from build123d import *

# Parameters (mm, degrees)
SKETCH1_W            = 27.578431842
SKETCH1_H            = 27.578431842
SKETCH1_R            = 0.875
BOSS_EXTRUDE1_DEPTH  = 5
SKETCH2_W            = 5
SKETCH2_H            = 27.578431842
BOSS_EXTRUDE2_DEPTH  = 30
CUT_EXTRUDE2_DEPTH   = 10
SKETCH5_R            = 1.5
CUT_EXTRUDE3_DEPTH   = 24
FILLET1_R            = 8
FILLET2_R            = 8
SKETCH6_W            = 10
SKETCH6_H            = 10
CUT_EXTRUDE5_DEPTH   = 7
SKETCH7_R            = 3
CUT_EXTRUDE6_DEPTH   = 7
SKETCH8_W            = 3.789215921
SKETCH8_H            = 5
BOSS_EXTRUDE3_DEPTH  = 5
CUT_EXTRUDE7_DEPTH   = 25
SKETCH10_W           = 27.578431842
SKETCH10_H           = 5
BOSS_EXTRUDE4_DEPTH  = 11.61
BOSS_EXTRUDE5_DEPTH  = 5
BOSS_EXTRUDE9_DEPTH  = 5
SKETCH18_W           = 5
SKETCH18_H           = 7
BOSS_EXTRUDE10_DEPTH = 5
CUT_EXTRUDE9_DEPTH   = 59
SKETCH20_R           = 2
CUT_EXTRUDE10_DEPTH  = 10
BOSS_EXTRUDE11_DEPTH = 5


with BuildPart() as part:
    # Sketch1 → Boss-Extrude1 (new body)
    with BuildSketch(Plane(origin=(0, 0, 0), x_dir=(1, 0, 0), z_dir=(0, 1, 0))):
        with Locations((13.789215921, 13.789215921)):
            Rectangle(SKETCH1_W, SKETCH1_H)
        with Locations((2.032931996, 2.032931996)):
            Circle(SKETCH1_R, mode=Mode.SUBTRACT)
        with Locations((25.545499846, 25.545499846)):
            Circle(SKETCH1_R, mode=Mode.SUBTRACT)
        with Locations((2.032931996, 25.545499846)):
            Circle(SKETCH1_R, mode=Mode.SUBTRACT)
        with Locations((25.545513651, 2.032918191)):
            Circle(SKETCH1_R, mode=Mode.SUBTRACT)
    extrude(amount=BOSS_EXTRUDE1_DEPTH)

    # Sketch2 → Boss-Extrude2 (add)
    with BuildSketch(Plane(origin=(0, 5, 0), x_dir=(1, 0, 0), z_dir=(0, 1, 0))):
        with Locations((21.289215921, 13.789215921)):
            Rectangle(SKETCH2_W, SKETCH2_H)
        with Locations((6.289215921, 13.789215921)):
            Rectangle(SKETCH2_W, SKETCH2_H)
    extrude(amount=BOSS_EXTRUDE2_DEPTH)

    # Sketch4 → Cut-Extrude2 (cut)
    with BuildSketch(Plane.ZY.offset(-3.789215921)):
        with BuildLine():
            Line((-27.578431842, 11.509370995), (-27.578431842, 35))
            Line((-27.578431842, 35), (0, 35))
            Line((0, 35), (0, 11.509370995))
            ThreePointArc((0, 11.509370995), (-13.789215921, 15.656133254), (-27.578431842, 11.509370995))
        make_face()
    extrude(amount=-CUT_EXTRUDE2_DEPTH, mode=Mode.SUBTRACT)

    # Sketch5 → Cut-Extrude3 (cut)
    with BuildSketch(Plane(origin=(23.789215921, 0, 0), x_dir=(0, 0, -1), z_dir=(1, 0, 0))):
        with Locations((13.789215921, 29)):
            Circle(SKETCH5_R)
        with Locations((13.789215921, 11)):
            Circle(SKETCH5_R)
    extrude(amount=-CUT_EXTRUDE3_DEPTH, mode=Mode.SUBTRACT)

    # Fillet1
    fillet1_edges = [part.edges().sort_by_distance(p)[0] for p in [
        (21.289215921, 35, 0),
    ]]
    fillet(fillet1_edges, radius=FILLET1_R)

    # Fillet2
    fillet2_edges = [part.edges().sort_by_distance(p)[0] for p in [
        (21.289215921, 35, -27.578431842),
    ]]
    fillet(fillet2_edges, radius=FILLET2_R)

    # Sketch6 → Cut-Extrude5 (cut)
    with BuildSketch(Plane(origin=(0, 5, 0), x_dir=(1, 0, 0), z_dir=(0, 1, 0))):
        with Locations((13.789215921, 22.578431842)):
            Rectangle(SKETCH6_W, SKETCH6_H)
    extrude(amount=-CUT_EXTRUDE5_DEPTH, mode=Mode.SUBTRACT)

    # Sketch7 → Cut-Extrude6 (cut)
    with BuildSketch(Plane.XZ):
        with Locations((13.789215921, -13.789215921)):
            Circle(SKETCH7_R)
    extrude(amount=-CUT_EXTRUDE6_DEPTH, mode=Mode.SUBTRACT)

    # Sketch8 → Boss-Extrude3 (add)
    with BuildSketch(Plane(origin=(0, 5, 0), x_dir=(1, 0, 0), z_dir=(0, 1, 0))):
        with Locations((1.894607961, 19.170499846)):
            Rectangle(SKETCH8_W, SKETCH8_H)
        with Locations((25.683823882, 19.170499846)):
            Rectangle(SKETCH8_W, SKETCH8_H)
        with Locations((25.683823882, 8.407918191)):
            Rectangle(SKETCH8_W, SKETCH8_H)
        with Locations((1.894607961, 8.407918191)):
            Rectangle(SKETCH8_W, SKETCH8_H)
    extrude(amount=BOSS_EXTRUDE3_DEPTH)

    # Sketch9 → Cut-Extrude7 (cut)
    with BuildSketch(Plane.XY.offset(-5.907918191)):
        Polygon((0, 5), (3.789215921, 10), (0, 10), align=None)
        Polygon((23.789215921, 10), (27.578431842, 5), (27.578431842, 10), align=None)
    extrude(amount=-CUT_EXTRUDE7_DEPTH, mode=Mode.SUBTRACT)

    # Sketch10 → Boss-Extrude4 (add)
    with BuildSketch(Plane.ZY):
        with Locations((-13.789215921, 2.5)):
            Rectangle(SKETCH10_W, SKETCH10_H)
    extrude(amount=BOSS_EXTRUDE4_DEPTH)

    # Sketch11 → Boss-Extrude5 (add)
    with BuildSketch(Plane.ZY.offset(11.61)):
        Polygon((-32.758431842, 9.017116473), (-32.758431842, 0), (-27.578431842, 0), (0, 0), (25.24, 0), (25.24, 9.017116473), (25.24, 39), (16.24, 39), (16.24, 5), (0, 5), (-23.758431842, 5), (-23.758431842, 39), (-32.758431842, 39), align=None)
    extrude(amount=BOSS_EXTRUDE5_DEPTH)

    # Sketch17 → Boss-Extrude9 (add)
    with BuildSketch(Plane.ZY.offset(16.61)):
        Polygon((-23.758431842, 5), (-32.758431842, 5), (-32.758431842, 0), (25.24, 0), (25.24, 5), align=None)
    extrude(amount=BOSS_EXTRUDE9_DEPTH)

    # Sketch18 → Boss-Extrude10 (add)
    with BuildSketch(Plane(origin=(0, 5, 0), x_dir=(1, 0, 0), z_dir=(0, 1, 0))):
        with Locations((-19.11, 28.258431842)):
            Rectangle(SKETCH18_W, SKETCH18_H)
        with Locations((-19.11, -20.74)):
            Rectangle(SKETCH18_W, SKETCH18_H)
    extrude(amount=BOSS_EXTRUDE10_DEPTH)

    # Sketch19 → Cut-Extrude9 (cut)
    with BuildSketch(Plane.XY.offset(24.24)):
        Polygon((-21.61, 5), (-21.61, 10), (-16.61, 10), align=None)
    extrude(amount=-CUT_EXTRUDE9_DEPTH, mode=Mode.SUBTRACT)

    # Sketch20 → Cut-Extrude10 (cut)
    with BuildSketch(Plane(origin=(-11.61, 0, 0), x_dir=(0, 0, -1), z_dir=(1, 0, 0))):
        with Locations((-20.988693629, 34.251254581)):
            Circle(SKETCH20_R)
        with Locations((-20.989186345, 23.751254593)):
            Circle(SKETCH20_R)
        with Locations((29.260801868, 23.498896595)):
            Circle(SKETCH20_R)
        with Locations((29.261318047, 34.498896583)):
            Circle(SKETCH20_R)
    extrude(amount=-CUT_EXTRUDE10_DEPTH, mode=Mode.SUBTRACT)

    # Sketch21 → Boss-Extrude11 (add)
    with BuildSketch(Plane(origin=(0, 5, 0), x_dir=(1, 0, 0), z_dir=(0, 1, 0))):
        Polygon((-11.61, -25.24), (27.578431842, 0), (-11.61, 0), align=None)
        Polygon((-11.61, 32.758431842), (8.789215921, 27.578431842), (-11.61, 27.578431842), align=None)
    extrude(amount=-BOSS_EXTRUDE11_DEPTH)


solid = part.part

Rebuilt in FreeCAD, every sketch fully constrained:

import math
import FreeCAD as App
import Part
import Sketcher
from FreeCAD import Vector
Q = App.Units.Quantity


def edges_at(feature, points):
    """Names of the edges that pass closest to the given points."""
    edges = feature.Shape.Edges
    near = lambda p: min(range(len(edges)), key=lambda i: edges[i].distToShape(Part.Vertex(*p))[0])
    return sorted({f"Edge{near(p) + 1}" for p in points})


def add_polygon(sketch, points):
    """Adds a closed chain of lines whose ends are joined by coincident constraints."""
    first, n = sketch.GeometryCount, len(points)
    for a, b in zip(points, points[1:] + points[:1]):
        sketch.addGeometry(Part.LineSegment(App.Vector(*a, 0), App.Vector(*b, 0)), False)
    for i in range(n):
        sketch.addConstraint(Sketcher.Constraint("Coincident", first + i, 2, first + (i + 1) % n, 1))

doc = App.newDocument("Part")
body = doc.addObject("PartDesign::Body", "Body")

# Sketch on XZ plane
sketch1 = body.newObject("Sketcher::SketchObject", "Sketch")
sketch1.AttachmentSupport = (doc.getObject("XZ_Plane"), [""])
sketch1.MapMode = "FlatFace"
add_polygon(sketch1, [(0, -27.578432), (0, 0), (27.578432, 0), (27.578432, -27.578432)])  # lines 0-3
sketch1.addGeometry(Part.Circle(Vector(2.032932, -2.032932, 0), Vector(0, 0, 1), 0.875), False)  # 4
sketch1.addGeometry(Part.Circle(Vector(25.545514, -2.032918, 0), Vector(0, 0, 1), 0.875), False)  # 5
sketch1.addGeometry(Part.Circle(Vector(2.032932, -25.5455, 0), Vector(0, 0, 1), 0.875), False)  # 6
sketch1.addGeometry(Part.Circle(Vector(25.5455, -25.5455, 0), Vector(0, 0, 1), 0.875), False)  # 7
sketch1.addConstraint([
    Sketcher.Constraint("Vertical", 0),
    Sketcher.Constraint("Horizontal", 1),
    Sketcher.Constraint("Vertical", 2),
    Sketcher.Constraint("Horizontal", 3),
    Sketcher.Constraint("Coincident", 0, 2, -1, 1),
    Sketcher.Constraint("Equal", 4, 5),
    Sketcher.Constraint("Equal", 5, 6),
    Sketcher.Constraint("Equal", 6, 7),
    Sketcher.Constraint("Horizontal", 6, 3, 7, 3),
    Sketcher.Constraint("Vertical", 4, 3, 6, 3),
    Sketcher.Constraint("Equal", 3, 0),
    Sketcher.Constraint("Diameter", 4, Q("1.75 mm")),
    Sketcher.Constraint("DistanceX", 1, 1, 1, 2, Q("27.578432 mm")),
    Sketcher.Constraint("DistanceY", 6, 3, -1, 1, Q("25.5455 mm")),
    Sketcher.Constraint("DistanceX", -1, 1, 7, 3, Q("25.5455 mm")),
    Sketcher.Constraint("DistanceX", 4, 3, 1, 2, Q("25.5455 mm")),
    Sketcher.Constraint("DistanceY", 2, 2, 4, 3, Q("25.5455 mm")),
    Sketcher.Constraint("DistanceY", 5, 3, -1, 1, Q("2.032918 mm")),
    Sketcher.Constraint("DistanceX", 4, 3, 5, 3, Q("23.512582 mm")),
])
pad1 = body.newObject("PartDesign::Pad", "Pad")
pad1.Profile = sketch1
pad1.Length = 5
pad1.Reversed = True

# Sketch on XZ plane
sketch2 = body.newObject("Sketcher::SketchObject", "Sketch001")
sketch2.AttachmentSupport = (doc.getObject("XZ_Plane"), [""])
sketch2.MapMode = "FlatFace"
sketch2.AttachmentOffset = App.Placement(Vector(0, 0, -5), App.Rotation())
add_polygon(sketch2, [(18.789216, -27.578432), (18.789216, 0), (23.789216, 0), (23.789216, -27.578432)])  # lines 0-3
add_polygon(sketch2, [(3.789216, -27.578432), (3.789216, 0), (8.789216, 0), (8.789216, -27.578432)])  # lines 4-7
sketch2.addConstraint([
    Sketcher.Constraint("Vertical", 0),
    Sketcher.Constraint("Horizontal", 1),
    Sketcher.Constraint("Vertical", 2),
    Sketcher.Constraint("Horizontal", 3),
    Sketcher.Constraint("Vertical", 4),
    Sketcher.Constraint("Horizontal", 5),
    Sketcher.Constraint("Vertical", 6),
    Sketcher.Constraint("Horizontal", 7),
    Sketcher.Constraint("PointOnObject", 0, 2, -1),
    Sketcher.Constraint("PointOnObject", 4, 2, -1),
    Sketcher.Constraint("Horizontal", 3, 2, 6, 2),
    Sketcher.Constraint("Equal", 3, 5),
    Sketcher.Constraint("DistanceX", 1, 1, 1, 2, Q("5 mm")),
    Sketcher.Constraint("DistanceX", 4, 2, 0, 2, Q("15 mm")),
    Sketcher.Constraint("DistanceY", 0, 1, 0, 2, Q("27.578432 mm")),
    Sketcher.Constraint("DistanceX", -1, 1, 0, 2, Q("18.789216 mm")),
])
pad2 = body.newObject("PartDesign::Pad", "Pad001")
pad2.Profile = sketch2
pad2.Length = 30
pad2.Reversed = True

# Sketch on YZ plane
sketch3 = body.newObject("Sketcher::SketchObject", "Sketch002")
sketch3.AttachmentSupport = (doc.getObject("YZ_Plane"), [""])
sketch3.MapMode = "FlatFace"
sketch3.AttachmentOffset = App.Placement(Vector(0, 0, 3.789216), App.Rotation())
sketch3.addGeometry([
    Part.LineSegment(Vector(35, -27.578432, 0), Vector(11.509371, -27.578432, 0)),
    Part.ArcOfCircle(Part.Circle(Vector(-9.343867, -13.789216, 0), Vector(0, 0, 1), 25), math.radians(-33.474695), math.radians(33.474695)),
    Part.LineSegment(Vector(11.509371, 0, 0), Vector(35, 0, 0)),
    Part.LineSegment(Vector(35, 0, 0), Vector(35, -27.578432, 0)),
], False)
sketch3.addConstraint([
    Sketcher.Constraint("Coincident", 0, 2, 1, 1),
    Sketcher.Constraint("Coincident", 1, 2, 2, 1),
    Sketcher.Constraint("Coincident", 2, 2, 3, 1),
    Sketcher.Constraint("Coincident", 3, 2, 0, 1),
    Sketcher.Constraint("Horizontal", 0),
    Sketcher.Constraint("Horizontal", 2),
    Sketcher.Constraint("Vertical", 3),
    Sketcher.Constraint("PointOnObject", 1, 2, -1),
    Sketcher.Constraint("Vertical", 0, 2, 1, 2),
    Sketcher.Constraint("Radius", 1, Q("25 mm")),
    Sketcher.Constraint("DistanceX", -1, 1, 2, 2, Q("35 mm")),
    Sketcher.Constraint("DistanceX", 0, 2, 0, 1, Q("23.490629 mm")),
    Sketcher.Constraint("DistanceY", 3, 2, 3, 1, Q("27.578432 mm")),
])
pocket1 = body.newObject("PartDesign::Pocket", "Pocket")
pocket1.Profile = sketch3
pocket1.Length = 10
pocket1.Reversed = True

# Sketch on YZ plane
sketch4 = body.newObject("Sketcher::SketchObject", "Sketch003")
sketch4.AttachmentSupport = (doc.getObject("YZ_Plane"), [""])
sketch4.MapMode = "FlatFace"
sketch4.AttachmentOffset = App.Placement(Vector(0, 0, 23.789216), App.Rotation())
sketch4.addGeometry([
    Part.Circle(Vector(29, -13.789216, 0), Vector(0, 0, 1), 1.5),
    Part.Circle(Vector(11, -13.789216, 0), Vector(0, 0, 1), 1.5),
], False)
sketch4.addConstraint([
    Sketcher.Constraint("Equal", 0, 1),
    Sketcher.Constraint("Horizontal", 0, 3, 1, 3),
    Sketcher.Constraint("Diameter", 0, Q("3 mm")),
    Sketcher.Constraint("DistanceX", -1, 1, 0, 3, Q("29 mm")),
    Sketcher.Constraint("DistanceX", -1, 1, 1, 3, Q("11 mm")),
    Sketcher.Constraint("DistanceY", 0, 3, -1, 1, Q("13.789216 mm")),
])
pocket2 = body.newObject("PartDesign::Pocket", "Pocket001")
pocket2.Profile = sketch4
pocket2.Length = 24
doc.recompute()

fillet = body.newObject("PartDesign::Fillet", "Fillet")
fillet.Base = (pocket2, edges_at(pocket2, [(21.289, 35, 0)]))
fillet.Radius = 8
doc.recompute()

fillet2 = body.newObject("PartDesign::Fillet", "Fillet001")
fillet2.Base = (fillet, edges_at(fillet, [(21.289, 35, -27.578)]))
fillet2.Radius = 8

# Sketch on XZ plane
sketch5 = body.newObject("Sketcher::SketchObject", "Sketch004")
sketch5.AttachmentSupport = (doc.getObject("XZ_Plane"), [""])
sketch5.MapMode = "FlatFace"
sketch5.AttachmentOffset = App.Placement(Vector(0, 0, -5), App.Rotation())
add_polygon(sketch5, [(8.789216, -27.578432), (8.789216, -17.578432), (18.789216, -17.578432), (18.789216, -27.578432)])  # lines 0-3
sketch5.addConstraint([
    Sketcher.Constraint("Vertical", 0),
    Sketcher.Constraint("Horizontal", 1),
    Sketcher.Constraint("Vertical", 2),
    Sketcher.Constraint("Horizontal", 3),
    Sketcher.Constraint("Equal", 3, 0),
    Sketcher.Constraint("DistanceX", 1, 1, 1, 2, Q("10 mm")),
    Sketcher.Constraint("DistanceY", 0, 2, -1, 1, Q("17.578432 mm")),
    Sketcher.Constraint("DistanceX", -1, 1, 0, 2, Q("8.789216 mm")),
])
pocket3 = body.newObject("PartDesign::Pocket", "Pocket002")
pocket3.Profile = sketch5
pocket3.Length = 7
pocket3.Reversed = True

# Sketch on XZ plane
sketch6 = body.newObject("Sketcher::SketchObject", "Sketch005")
sketch6.AttachmentSupport = (doc.getObject("XZ_Plane"), [""])
sketch6.MapMode = "FlatFace"
sketch6.addGeometry(Part.Circle(Vector(13.789216, -13.789216, 0), Vector(0, 0, 1), 3), False)
sketch6.addConstraint([
    Sketcher.Constraint("Diameter", 0, Q("6 mm")),
    Sketcher.Constraint("DistanceX", -1, 1, 0, 3, Q("13.789216 mm")),
    Sketcher.Constraint("DistanceY", 0, 3, -1, 1, Q("13.789216 mm")),
])
pocket4 = body.newObject("PartDesign::Pocket", "Pocket003")
pocket4.Profile = sketch6
pocket4.Length = 7

# Sketch on XZ plane
sketch7 = body.newObject("Sketcher::SketchObject", "Sketch006")
sketch7.AttachmentSupport = (doc.getObject("XZ_Plane"), [""])
sketch7.MapMode = "FlatFace"
sketch7.AttachmentOffset = App.Placement(Vector(0, 0, -5), App.Rotation())
add_polygon(sketch7, [(0, -21.6705), (0, -16.6705), (3.789216, -16.6705), (3.789216, -21.6705)])  # lines 0-3
add_polygon(sketch7, [(23.789216, -21.6705), (23.789216, -16.6705), (27.578432, -16.6705), (27.578432, -21.6705)])  # lines 4-7
add_polygon(sketch7, [(23.789216, -10.907918), (23.789216, -5.907918), (27.578432, -5.907918), (27.578432, -10.907918)])  # lines 8-11
add_polygon(sketch7, [(0, -10.907918), (0, -5.907918), (3.789216, -5.907918), (3.789216, -10.907918)])  # lines 12-15
sketch7.addConstraint([
    Sketcher.Constraint("Vertical", 0),
    Sketcher.Constraint("Horizontal", 1),
    Sketcher.Constraint("Vertical", 2),
    Sketcher.Constraint("Horizontal", 3),
    Sketcher.Constraint("Vertical", 4),
    Sketcher.Constraint("Horizontal", 5),
    Sketcher.Constraint("Vertical", 6),
    Sketcher.Constraint("Horizontal", 7),
    Sketcher.Constraint("Vertical", 8),
    Sketcher.Constraint("Horizontal", 9),
    Sketcher.Constraint("Vertical", 10),
    Sketcher.Constraint("Horizontal", 11),
    Sketcher.Constraint("Vertical", 12),
    Sketcher.Constraint("Horizontal", 13),
    Sketcher.Constraint("Vertical", 14),
    Sketcher.Constraint("Horizontal", 15),
    Sketcher.Constraint("PointOnObject", 0, 2, -2),
    Sketcher.Constraint("PointOnObject", 12, 2, -2),
    Sketcher.Constraint("Horizontal", 1, 2, 4, 2),
    Sketcher.Constraint("Horizontal", 3, 2, 6, 2),
    Sketcher.Constraint("Horizontal", 9, 2, 12, 2),
    Sketcher.Constraint("Horizontal", 11, 2, 14, 2),
    Sketcher.Constraint("Vertical", 7, 2, 8, 2),
    Sketcher.Constraint("Vertical", 6, 2, 9, 2),
    Sketcher.Constraint("Vertical", 2, 2, 13, 2),
    Sketcher.Constraint("Equal", 3, 5),
    Sketcher.Constraint("Equal", 6, 8),
    Sketcher.Constraint("DistanceY", 0, 1, 0, 2, Q("5 mm")),
    Sketcher.Constraint("DistanceX", 1, 2, 4, 2, Q("20 mm")),
    Sketcher.Constraint("DistanceY", 0, 2, -1, 1, Q("16.6705 mm")),
    Sketcher.Constraint("DistanceX", 1, 1, 1, 2, Q("3.789216 mm")),
    Sketcher.Constraint("DistanceY", 8, 2, -1, 1, Q("5.907918 mm")),
])
pad3 = body.newObject("PartDesign::Pad", "Pad002")
pad3.Profile = sketch7
pad3.Length = 5
pad3.Reversed = True

# Sketch on XY plane
sketch8 = body.newObject("Sketcher::SketchObject", "Sketch007")
sketch8.AttachmentSupport = (doc.getObject("XY_Plane"), [""])
sketch8.MapMode = "FlatFace"
sketch8.AttachmentOffset = App.Placement(Vector(0, 0, -5.907918), App.Rotation())
add_polygon(sketch8, [(0, 5), (3.789216, 10), (0, 10)])  # lines 0-2
add_polygon(sketch8, [(23.789216, 10), (27.578432, 5), (27.578432, 10)])  # lines 3-5
sketch8.addConstraint([
    Sketcher.Constraint("Horizontal", 1),
    Sketcher.Constraint("Vertical", 2),
    Sketcher.Constraint("Vertical", 4),
    Sketcher.Constraint("Horizontal", 5),
    Sketcher.Constraint("PointOnObject", 1, 2, -2),
    Sketcher.Constraint("Horizontal", 2, 2, 3, 2),
    Sketcher.Constraint("Horizontal", 1, 2, 4, 2),
    Sketcher.Constraint("Equal", 1, 5),
    Sketcher.Constraint("DistanceY", 2, 2, 2, 1, Q("5 mm")),
    Sketcher.Constraint("DistanceY", -1, 1, 0, 2, Q("10 mm")),
    Sketcher.Constraint("DistanceX", 0, 2, 5, 2, Q("20 mm")),
    Sketcher.Constraint("DistanceX", 1, 2, 1, 1, Q("3.789216 mm")),
])
pocket5 = body.newObject("PartDesign::Pocket", "Pocket004")
pocket5.Profile = sketch8
pocket5.Length = 25

# Sketch on YZ plane
sketch9 = body.newObject("Sketcher::SketchObject", "Sketch008")
sketch9.AttachmentSupport = (doc.getObject("YZ_Plane"), [""])
sketch9.MapMode = "FlatFace"
add_polygon(sketch9, [(5, -27.578432), (0, -27.578432), (0, 0), (5, 0)])  # lines 0-3
sketch9.addConstraint([
    Sketcher.Constraint("Horizontal", 0),
    Sketcher.Constraint("Vertical", 1),
    Sketcher.Constraint("Horizontal", 2),
    Sketcher.Constraint("Vertical", 3),
    Sketcher.Constraint("Coincident", 1, 2, -1, 1),
    Sketcher.Constraint("DistanceX", 0, 2, 0, 1, Q("5 mm")),
    Sketcher.Constraint("DistanceY", 1, 1, 1, 2, Q("27.578432 mm")),
])
pad4 = body.newObject("PartDesign::Pad", "Pad003")
pad4.Profile = sketch9
pad4.Length = 11.61
pad4.Reversed = True

# Sketch on YZ plane
sketch10 = body.newObject("Sketcher::SketchObject", "Sketch009")
sketch10.AttachmentSupport = (doc.getObject("YZ_Plane"), [""])
sketch10.MapMode = "FlatFace"
sketch10.AttachmentOffset = App.Placement(Vector(0, 0, -11.61), App.Rotation())
add_polygon(sketch10, [(0, -32.758432), (0, 25.24), (39, 25.24), (39, 16.24), (5, 16.24), (5, -23.758432), (39, -23.758432), (39, -32.758432)])  # lines 0-7
sketch10.addConstraint([
    Sketcher.Constraint("Vertical", 0),
    Sketcher.Constraint("Horizontal", 1),
    Sketcher.Constraint("Vertical", 2),
    Sketcher.Constraint("Horizontal", 3),
    Sketcher.Constraint("Vertical", 4),
    Sketcher.Constraint("Horizontal", 5),
    Sketcher.Constraint("Vertical", 6),
    Sketcher.Constraint("Horizontal", 7),
    Sketcher.Constraint("PointOnObject", 0, 2, -2),
    Sketcher.Constraint("Vertical", 2, 2, 5, 2),
    Sketcher.Constraint("Equal", 2, 6),
    Sketcher.Constraint("DistanceX", 1, 1, 1, 2, Q("39 mm")),
    Sketcher.Constraint("DistanceX", 3, 2, 3, 1, Q("34 mm")),
    Sketcher.Constraint("DistanceY", 2, 2, 2, 1, Q("9 mm")),
    Sketcher.Constraint("DistanceY", -1, 1, 0, 2, Q("25.24 mm")),
    Sketcher.Constraint("DistanceY", 0, 1, 0, 2, Q("57.998432 mm")),
])
pad5 = body.newObject("PartDesign::Pad", "Pad004")
pad5.Profile = sketch10
pad5.Length = 5
pad5.Reversed = True

# Sketch on YZ plane
sketch11 = body.newObject("Sketcher::SketchObject", "Sketch010")
sketch11.AttachmentSupport = (doc.getObject("YZ_Plane"), [""])
sketch11.MapMode = "FlatFace"
sketch11.AttachmentOffset = App.Placement(Vector(0, 0, -16.61), App.Rotation())
add_polygon(sketch11, [(5, -32.758432), (0, -32.758432), (0, 25.24), (5, 25.24)])  # lines 0-3
sketch11.addConstraint([
    Sketcher.Constraint("Horizontal", 0),
    Sketcher.Constraint("Vertical", 1),
    Sketcher.Constraint("Horizontal", 2),
    Sketcher.Constraint("Vertical", 3),
    Sketcher.Constraint("PointOnObject", 0, 2, -2),
    Sketcher.Constraint("DistanceX", 0, 2, 0, 1, Q("5 mm")),
    Sketcher.Constraint("DistanceY", -1, 1, 1, 2, Q("25.24 mm")),
    Sketcher.Constraint("DistanceY", 1, 1, 1, 2, Q("57.998432 mm")),
])
pad6 = body.newObject("PartDesign::Pad", "Pad005")
pad6.Profile = sketch11
pad6.Length = 5
pad6.Reversed = True

# Sketch on XZ plane
sketch12 = body.newObject("Sketcher::SketchObject", "Sketch011")
sketch12.AttachmentSupport = (doc.getObject("XZ_Plane"), [""])
sketch12.MapMode = "FlatFace"
sketch12.AttachmentOffset = App.Placement(Vector(0, 0, -5), App.Rotation())
add_polygon(sketch12, [(-21.61, -31.758432), (-21.61, -24.758432), (-16.61, -24.758432), (-16.61, -31.758432)])  # lines 0-3
add_polygon(sketch12, [(-21.61, 17.24), (-21.61, 24.24), (-16.61, 24.24), (-16.61, 17.24)])  # lines 4-7
sketch12.addConstraint([
    Sketcher.Constraint("Vertical", 0),
    Sketcher.Constraint("Horizontal", 1),
    Sketcher.Constraint("Vertical", 2),
    Sketcher.Constraint("Horizontal", 3),
    Sketcher.Constraint("Vertical", 4),
    Sketcher.Constraint("Horizontal", 5),
    Sketcher.Constraint("Vertical", 6),
    Sketcher.Constraint("Horizontal", 7),
    Sketcher.Constraint("Vertical", 3, 2, 4, 2),
    Sketcher.Constraint("Vertical", 2, 2, 5, 2),
    Sketcher.Constraint("Equal", 2, 4),
    Sketcher.Constraint("DistanceX", 1, 1, 1, 2, Q("5 mm")),
    Sketcher.Constraint("DistanceY", 0, 1, 0, 2, Q("7 mm")),
    Sketcher.Constraint("DistanceX", 0, 2, -1, 1, Q("21.61 mm")),
    Sketcher.Constraint("DistanceY", -1, 1, 4, 2, Q("24.24 mm")),
    Sketcher.Constraint("DistanceY", 0, 2, -1, 1, Q("24.758432 mm")),
])
pad7 = body.newObject("PartDesign::Pad", "Pad006")
pad7.Profile = sketch12
pad7.Length = 5
pad7.Reversed = True

# Sketch on XY plane
sketch13 = body.newObject("Sketcher::SketchObject", "Sketch012")
sketch13.AttachmentSupport = (doc.getObject("XY_Plane"), [""])
sketch13.MapMode = "FlatFace"
sketch13.AttachmentOffset = App.Placement(Vector(0, 0, 24.24), App.Rotation())
add_polygon(sketch13, [(-21.61, 10), (-21.61, 5), (-16.61, 10)])  # lines 0-2
sketch13.addConstraint([
    Sketcher.Constraint("Vertical", 0),
    Sketcher.Constraint("Horizontal", 2),
    Sketcher.Constraint("Equal", 2, 0),
    Sketcher.Constraint("DistanceX", 2, 2, 2, 1, Q("5 mm")),
    Sketcher.Constraint("DistanceY", -1, 1, 0, 2, Q("5 mm")),
    Sketcher.Constraint("DistanceX", 0, 2, -1, 1, Q("21.61 mm")),
])
pocket6 = body.newObject("PartDesign::Pocket", "Pocket005")
pocket6.Profile = sketch13
pocket6.Length = 59

# Sketch on YZ plane
sketch14 = body.newObject("Sketcher::SketchObject", "Sketch013")
sketch14.AttachmentSupport = (doc.getObject("YZ_Plane"), [""])
sketch14.MapMode = "FlatFace"
sketch14.AttachmentOffset = App.Placement(Vector(0, 0, -11.61), App.Rotation())
sketch14.addGeometry([
    Part.Circle(Vector(34.251255, 20.988694, 0), Vector(0, 0, 1), 2),
    Part.Circle(Vector(23.751255, 20.989186, 0), Vector(0, 0, 1), 2),
    Part.Circle(Vector(23.498897, -29.260802, 0), Vector(0, 0, 1), 2),
    Part.Circle(Vector(34.498897, -29.261318, 0), Vector(0, 0, 1), 2),
], False)
sketch14.addConstraint([
    Sketcher.Constraint("Equal", 0, 1),
    Sketcher.Constraint("Equal", 1, 2),
    Sketcher.Constraint("Equal", 2, 3),
    Sketcher.Constraint("Diameter", 0, Q("4 mm")),
    Sketcher.Constraint("DistanceX", 2, 3, 3, 3, Q("11 mm")),
    Sketcher.Constraint("DistanceX", 1, 3, 0, 3, Q("10.5 mm")),
    Sketcher.Constraint("DistanceY", 2, 3, -1, 1, Q("29.260802 mm")),
    Sketcher.Constraint("DistanceY", 3, 3, -1, 1, Q("29.261318 mm")),
    Sketcher.Constraint("DistanceY", 2, 3, 1, 3, Q("50.249988 mm")),
    Sketcher.Constraint("DistanceY", 3, 3, 0, 3, Q("50.250012 mm")),
    Sketcher.Constraint("DistanceX", 1, 3, 3, 3, Q("10.747642 mm")),
    Sketcher.Constraint("DistanceX", -1, 1, 0, 3, Q("34.251255 mm")),
])
pocket7 = body.newObject("PartDesign::Pocket", "Pocket006")
pocket7.Profile = sketch14
pocket7.Length = 10

# Sketch on XZ plane
sketch15 = body.newObject("Sketcher::SketchObject", "Sketch014")
sketch15.AttachmentSupport = (doc.getObject("XZ_Plane"), [""])
sketch15.MapMode = "FlatFace"
sketch15.AttachmentOffset = App.Placement(Vector(0, 0, -5), App.Rotation())
add_polygon(sketch15, [(-11.61, 25.24), (27.578432, 0), (-11.61, 0)])  # lines 0-2
add_polygon(sketch15, [(8.789216, -27.578432), (-11.61, -32.758432), (-11.61, -27.578432)])  # lines 3-5
sketch15.addConstraint([
    Sketcher.Constraint("Horizontal", 1),
    Sketcher.Constraint("Vertical", 2),
    Sketcher.Constraint("Vertical", 4),
    Sketcher.Constraint("Horizontal", 5),
    Sketcher.Constraint("PointOnObject", 0, 2, -1),
    Sketcher.Constraint("Vertical", 2, 2, 3, 2),
    Sketcher.Constraint("DistanceY", 2, 1, 2, 2, Q("25.24 mm")),
    Sketcher.Constraint("DistanceY", 4, 1, 4, 2, Q("5.18 mm")),
    Sketcher.Constraint("DistanceX", 1, 2, -1, 1, Q("11.61 mm")),
    Sketcher.Constraint("DistanceX", 1, 2, 1, 1, Q("39.188432 mm")),
    Sketcher.Constraint("DistanceX", 5, 1, 5, 2, Q("20.399216 mm")),
    Sketcher.Constraint("DistanceY", 3, 2, -1, 1, Q("32.758432 mm")),
])
pad8 = body.newObject("PartDesign::Pad", "Pad007")
pad8.Profile = sketch15
pad8.Length = 5

doc.recompute()
